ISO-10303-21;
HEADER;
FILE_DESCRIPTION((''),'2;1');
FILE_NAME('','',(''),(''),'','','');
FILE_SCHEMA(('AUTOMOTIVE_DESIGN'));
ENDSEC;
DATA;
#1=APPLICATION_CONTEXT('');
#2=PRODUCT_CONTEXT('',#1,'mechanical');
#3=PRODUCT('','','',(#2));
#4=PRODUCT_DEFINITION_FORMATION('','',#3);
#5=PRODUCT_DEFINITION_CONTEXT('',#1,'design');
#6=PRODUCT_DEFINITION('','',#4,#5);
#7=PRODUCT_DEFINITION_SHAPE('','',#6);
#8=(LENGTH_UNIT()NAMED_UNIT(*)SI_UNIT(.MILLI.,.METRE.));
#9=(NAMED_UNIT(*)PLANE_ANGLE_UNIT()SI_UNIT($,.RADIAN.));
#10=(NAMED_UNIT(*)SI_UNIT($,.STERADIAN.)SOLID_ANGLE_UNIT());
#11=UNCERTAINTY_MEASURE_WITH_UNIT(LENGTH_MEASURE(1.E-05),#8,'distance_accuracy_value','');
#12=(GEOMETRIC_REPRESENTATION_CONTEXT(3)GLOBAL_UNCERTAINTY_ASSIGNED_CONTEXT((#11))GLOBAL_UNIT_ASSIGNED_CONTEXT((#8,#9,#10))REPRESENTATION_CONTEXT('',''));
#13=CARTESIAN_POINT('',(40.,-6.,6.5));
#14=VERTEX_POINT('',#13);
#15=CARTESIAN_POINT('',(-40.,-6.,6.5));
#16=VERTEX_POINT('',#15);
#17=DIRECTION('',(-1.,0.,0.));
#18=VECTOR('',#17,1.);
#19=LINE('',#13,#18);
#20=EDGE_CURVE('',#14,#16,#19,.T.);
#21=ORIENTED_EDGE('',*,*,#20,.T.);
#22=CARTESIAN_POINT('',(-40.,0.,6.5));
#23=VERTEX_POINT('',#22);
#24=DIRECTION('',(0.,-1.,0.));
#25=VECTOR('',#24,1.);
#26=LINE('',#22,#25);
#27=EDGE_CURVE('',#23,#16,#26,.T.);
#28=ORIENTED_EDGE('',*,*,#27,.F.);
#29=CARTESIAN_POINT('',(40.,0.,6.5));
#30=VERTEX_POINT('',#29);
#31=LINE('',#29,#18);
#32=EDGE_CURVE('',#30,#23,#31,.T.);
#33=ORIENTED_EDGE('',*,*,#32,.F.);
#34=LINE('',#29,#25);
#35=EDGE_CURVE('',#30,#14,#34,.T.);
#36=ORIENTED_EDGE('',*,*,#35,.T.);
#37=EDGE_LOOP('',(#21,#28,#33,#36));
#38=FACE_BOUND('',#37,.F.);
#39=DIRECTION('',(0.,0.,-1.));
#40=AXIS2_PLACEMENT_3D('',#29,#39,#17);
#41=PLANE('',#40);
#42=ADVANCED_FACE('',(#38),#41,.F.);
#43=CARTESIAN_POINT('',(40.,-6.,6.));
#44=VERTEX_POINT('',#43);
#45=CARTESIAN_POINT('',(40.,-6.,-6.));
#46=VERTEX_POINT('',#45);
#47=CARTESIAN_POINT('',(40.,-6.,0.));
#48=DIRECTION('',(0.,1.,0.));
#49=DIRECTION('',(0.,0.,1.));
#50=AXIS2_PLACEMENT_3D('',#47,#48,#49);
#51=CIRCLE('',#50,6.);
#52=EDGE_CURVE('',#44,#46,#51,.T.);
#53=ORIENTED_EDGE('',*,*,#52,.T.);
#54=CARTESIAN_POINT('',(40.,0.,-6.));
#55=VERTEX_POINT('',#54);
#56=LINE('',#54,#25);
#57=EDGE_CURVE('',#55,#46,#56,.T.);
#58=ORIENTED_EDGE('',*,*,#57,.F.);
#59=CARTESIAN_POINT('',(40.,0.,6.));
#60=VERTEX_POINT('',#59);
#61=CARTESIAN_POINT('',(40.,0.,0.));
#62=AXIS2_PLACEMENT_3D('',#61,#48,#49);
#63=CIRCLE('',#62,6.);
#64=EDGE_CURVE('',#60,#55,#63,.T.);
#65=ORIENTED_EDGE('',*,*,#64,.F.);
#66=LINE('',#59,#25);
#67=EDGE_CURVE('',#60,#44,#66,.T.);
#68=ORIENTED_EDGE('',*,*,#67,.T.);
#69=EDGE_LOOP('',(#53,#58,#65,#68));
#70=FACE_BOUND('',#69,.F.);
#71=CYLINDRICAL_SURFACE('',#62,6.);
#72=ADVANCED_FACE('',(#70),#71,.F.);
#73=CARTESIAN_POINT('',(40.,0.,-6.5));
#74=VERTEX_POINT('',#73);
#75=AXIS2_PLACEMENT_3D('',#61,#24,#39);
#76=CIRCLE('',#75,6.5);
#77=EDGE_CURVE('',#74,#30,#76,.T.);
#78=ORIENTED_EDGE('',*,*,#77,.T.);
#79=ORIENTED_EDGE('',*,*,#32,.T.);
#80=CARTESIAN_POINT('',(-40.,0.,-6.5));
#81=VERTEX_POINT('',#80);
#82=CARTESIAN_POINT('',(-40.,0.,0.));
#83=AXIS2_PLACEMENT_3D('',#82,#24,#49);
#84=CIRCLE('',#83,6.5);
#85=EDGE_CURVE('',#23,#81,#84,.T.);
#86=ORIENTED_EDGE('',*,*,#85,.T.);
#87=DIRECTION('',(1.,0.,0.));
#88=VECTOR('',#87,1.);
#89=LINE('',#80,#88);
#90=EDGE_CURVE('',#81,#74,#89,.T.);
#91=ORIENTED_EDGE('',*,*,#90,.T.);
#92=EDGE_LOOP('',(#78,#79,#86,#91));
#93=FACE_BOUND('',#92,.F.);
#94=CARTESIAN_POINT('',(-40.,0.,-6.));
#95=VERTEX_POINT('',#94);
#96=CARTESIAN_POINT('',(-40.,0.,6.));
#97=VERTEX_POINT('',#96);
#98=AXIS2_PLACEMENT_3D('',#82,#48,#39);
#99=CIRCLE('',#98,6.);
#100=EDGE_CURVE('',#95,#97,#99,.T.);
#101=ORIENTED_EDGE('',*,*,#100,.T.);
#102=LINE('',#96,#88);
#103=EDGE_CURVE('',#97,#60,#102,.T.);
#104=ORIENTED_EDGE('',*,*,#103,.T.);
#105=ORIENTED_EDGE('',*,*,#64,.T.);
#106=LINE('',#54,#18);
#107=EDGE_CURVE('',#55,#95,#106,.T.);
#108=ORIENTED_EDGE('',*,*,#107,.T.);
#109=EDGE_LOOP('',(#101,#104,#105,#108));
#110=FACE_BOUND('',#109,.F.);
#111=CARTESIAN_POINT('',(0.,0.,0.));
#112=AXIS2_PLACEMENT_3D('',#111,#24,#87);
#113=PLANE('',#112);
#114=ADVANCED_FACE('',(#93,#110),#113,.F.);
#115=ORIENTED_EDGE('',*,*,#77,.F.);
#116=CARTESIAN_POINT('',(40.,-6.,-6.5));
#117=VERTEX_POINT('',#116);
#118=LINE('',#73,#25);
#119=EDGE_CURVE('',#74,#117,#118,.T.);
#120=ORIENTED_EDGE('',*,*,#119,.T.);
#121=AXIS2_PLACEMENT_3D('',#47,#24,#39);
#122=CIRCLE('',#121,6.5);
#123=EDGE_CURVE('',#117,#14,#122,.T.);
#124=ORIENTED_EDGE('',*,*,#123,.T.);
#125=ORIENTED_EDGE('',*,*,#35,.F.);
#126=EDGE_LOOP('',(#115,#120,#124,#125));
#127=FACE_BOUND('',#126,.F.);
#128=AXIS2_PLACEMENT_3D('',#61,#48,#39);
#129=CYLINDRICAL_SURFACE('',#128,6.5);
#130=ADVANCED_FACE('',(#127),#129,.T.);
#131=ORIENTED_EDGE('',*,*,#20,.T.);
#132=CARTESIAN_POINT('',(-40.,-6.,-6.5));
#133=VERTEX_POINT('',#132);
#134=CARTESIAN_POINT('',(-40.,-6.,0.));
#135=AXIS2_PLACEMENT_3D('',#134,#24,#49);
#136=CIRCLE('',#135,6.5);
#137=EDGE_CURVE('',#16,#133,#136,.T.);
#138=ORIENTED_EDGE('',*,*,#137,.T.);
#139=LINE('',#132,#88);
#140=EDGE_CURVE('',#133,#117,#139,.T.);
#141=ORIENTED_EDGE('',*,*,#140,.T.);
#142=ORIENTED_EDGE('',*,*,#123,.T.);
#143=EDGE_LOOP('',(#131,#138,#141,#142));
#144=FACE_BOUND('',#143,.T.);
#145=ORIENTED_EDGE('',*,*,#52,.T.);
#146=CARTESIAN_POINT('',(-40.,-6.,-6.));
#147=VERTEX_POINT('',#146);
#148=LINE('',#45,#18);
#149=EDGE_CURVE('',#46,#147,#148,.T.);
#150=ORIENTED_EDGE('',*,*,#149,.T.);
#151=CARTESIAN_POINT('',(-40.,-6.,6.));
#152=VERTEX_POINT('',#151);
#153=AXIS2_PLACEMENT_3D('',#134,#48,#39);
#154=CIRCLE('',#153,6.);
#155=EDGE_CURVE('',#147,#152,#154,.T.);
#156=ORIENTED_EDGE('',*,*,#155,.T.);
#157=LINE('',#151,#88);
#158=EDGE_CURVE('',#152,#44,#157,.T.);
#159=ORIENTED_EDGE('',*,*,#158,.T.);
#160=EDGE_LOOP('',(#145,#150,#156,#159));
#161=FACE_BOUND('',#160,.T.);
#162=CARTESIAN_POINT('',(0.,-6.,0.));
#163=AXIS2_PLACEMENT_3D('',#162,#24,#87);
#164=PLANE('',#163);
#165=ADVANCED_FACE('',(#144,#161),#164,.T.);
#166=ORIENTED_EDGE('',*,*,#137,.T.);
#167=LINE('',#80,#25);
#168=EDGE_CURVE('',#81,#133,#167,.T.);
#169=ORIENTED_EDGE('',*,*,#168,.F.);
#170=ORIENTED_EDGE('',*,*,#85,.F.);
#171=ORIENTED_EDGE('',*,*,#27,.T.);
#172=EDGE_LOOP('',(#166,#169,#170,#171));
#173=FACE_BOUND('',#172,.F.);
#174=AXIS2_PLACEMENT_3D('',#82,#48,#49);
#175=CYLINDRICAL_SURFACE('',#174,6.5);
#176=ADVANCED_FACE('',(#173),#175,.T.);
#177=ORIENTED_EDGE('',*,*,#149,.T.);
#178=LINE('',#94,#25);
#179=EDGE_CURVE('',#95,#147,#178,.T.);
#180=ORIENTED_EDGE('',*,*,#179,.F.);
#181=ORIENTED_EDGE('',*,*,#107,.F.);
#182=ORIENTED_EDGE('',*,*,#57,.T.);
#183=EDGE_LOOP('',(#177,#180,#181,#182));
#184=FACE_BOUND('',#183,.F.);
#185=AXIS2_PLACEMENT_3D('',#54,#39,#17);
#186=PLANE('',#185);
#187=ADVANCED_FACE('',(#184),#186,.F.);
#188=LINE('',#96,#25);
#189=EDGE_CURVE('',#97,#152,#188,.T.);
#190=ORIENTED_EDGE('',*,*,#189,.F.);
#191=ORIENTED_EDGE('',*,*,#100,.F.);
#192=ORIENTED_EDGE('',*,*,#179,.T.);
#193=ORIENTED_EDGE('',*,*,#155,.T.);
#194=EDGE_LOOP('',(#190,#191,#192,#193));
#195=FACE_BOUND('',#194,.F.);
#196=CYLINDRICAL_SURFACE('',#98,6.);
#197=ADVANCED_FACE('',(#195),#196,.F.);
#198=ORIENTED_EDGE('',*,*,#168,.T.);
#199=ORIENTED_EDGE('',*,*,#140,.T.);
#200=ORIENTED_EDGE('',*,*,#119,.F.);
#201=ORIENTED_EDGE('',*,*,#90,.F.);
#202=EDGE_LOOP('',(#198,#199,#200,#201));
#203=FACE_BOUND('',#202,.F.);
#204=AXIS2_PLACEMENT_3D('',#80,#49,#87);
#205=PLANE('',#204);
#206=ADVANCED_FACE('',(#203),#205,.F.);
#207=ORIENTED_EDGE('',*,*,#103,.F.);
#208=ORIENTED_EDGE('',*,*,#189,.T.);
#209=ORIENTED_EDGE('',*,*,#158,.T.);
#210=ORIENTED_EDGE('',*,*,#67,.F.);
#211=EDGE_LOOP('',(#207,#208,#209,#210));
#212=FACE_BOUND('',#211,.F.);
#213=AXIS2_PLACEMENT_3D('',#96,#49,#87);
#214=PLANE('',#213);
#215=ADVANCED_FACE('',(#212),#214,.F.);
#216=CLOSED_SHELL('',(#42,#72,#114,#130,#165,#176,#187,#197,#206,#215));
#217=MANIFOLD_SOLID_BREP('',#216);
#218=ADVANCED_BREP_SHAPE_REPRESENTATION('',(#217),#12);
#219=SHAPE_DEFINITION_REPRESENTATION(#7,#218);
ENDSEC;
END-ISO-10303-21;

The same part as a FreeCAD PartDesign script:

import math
import FreeCAD as App
import Part
import Sketcher
Q = App.Units.Quantity

doc = App.newDocument("Part")
params = doc.addObject("Spreadsheet::Sheet", "Params")
for row, (alias, value) in enumerate([
    ("sketch1_radius", "6 mm"),
    ("sketch1_radius2", "6.5 mm"),
    ("sketch1_width", "80 mm"),
    ("pad1_length", "6 mm"),
], start=1):
    params.set(f"A{row}", alias)
    params.set(f"B{row}", "=" + value)
    params.setAlias(f"B{row}", alias)

body = doc.addObject("PartDesign::Body", "Body")

# Sketch on XZ plane
sketch1 = body.newObject("Sketcher::SketchObject", "Sketch")
sketch1.AttachmentSupport = (doc.getObject("XZ_Plane"), [""])
sketch1.MapMode = "FlatFace"
sketch1.addGeometry(Part.ArcOfCircle(Part.Circle(App.Vector(-40, 0, 0), App.Vector(0, 0, 1), 6), math.radians(90), math.radians(270)), False)
sketch1.addGeometry(Part.LineSegment(App.Vector(-40, -6, 0), App.Vector(40, -6, 0)), False)
sketch1.addGeometry(Part.ArcOfCircle(Part.Circle(App.Vector(40, 0, 0), App.Vector(0, 0, 1), 6), math.radians(-90), math.radians(90)), False)
sketch1.addGeometry(Part.LineSegment(App.Vector(40, 6, 0), App.Vector(-40, 6, 0)), False)
sketch1.addGeometry(Part.LineSegment(App.Vector(40, -6, 0), App.Vector(-40, -6, 0)), False)
sketch1.addGeometry(Part.ArcOfCircle(Part.Circle(App.Vector(-40, 0, 0), App.Vector(0, 0, 1), 6), math.radians(90), math.radians(270)), False)
sketch1.addGeometry(Part.LineSegment(App.Vector(-40, 6, 0), App.Vector(40, 6, 0)), False)
sketch1.addGeometry(Part.ArcOfCircle(Part.Circle(App.Vector(40, 0, 0), App.Vector(0, 0, 1), 6), math.radians(-90), math.radians(90)), False)
sketch1.addConstraint(Sketcher.Constraint("Tangent", 0, 2, 1, 1))
sketch1.addConstraint(Sketcher.Constraint("Tangent", 1, 2, 2, 1))
sketch1.addConstraint(Sketcher.Constraint("Tangent", 2, 2, 3, 1))
sketch1.addConstraint(Sketcher.Constraint("Tangent", 3, 2, 0, 1))
sketch1.addConstraint(Sketcher.Constraint("Tangent", 4, 2, 5, 2))
sketch1.addConstraint(Sketcher.Constraint("Tangent", 5, 1, 6, 1))
sketch1.addConstraint(Sketcher.Constraint("Tangent", 6, 2, 7, 2))
sketch1.addConstraint(Sketcher.Constraint("Tangent", 7, 1, 4, 1))
sketch1.addConstraint(Sketcher.Constraint("Horizontal", 1))
sketch1.addConstraint(Sketcher.Constraint("Horizontal", 3))
sketch1.addConstraint(Sketcher.Constraint("Horizontal", 4))
sketch1.addConstraint(Sketcher.Constraint("Horizontal", 6))
sketch1.addConstraint(Sketcher.Constraint("Coincident", 5, 3, 0, 3))
sketch1.addConstraint(Sketcher.Constraint("Symmetric", 0, 3, 2, 3, -1, 1))
sketch1.addConstraint(Sketcher.Constraint("Vertical", 7, 3, 1, 2))
sketch1.addConstraint(Sketcher.Constraint("Radius", 5, Q("6 mm")))
sketch1.addConstraint(Sketcher.Constraint("Radius", 0, Q("6.5 mm")))
sketch1.addConstraint(Sketcher.Constraint("DistanceX", 1, 1, 1, 2, Q("80 mm")))
sketch1.setExpression("Constraints[15]", "Params.sketch1_radius")
sketch1.setExpression("Constraints[16]", "Params.sketch1_radius2")
sketch1.setExpression("Constraints[17]", "Params.sketch1_width")
pad1 = body.newObject("PartDesign::Pad", "Pad")
pad1.Profile = sketch1
pad1.setExpression("Length", "Params.pad1_length")

doc.recompute()
